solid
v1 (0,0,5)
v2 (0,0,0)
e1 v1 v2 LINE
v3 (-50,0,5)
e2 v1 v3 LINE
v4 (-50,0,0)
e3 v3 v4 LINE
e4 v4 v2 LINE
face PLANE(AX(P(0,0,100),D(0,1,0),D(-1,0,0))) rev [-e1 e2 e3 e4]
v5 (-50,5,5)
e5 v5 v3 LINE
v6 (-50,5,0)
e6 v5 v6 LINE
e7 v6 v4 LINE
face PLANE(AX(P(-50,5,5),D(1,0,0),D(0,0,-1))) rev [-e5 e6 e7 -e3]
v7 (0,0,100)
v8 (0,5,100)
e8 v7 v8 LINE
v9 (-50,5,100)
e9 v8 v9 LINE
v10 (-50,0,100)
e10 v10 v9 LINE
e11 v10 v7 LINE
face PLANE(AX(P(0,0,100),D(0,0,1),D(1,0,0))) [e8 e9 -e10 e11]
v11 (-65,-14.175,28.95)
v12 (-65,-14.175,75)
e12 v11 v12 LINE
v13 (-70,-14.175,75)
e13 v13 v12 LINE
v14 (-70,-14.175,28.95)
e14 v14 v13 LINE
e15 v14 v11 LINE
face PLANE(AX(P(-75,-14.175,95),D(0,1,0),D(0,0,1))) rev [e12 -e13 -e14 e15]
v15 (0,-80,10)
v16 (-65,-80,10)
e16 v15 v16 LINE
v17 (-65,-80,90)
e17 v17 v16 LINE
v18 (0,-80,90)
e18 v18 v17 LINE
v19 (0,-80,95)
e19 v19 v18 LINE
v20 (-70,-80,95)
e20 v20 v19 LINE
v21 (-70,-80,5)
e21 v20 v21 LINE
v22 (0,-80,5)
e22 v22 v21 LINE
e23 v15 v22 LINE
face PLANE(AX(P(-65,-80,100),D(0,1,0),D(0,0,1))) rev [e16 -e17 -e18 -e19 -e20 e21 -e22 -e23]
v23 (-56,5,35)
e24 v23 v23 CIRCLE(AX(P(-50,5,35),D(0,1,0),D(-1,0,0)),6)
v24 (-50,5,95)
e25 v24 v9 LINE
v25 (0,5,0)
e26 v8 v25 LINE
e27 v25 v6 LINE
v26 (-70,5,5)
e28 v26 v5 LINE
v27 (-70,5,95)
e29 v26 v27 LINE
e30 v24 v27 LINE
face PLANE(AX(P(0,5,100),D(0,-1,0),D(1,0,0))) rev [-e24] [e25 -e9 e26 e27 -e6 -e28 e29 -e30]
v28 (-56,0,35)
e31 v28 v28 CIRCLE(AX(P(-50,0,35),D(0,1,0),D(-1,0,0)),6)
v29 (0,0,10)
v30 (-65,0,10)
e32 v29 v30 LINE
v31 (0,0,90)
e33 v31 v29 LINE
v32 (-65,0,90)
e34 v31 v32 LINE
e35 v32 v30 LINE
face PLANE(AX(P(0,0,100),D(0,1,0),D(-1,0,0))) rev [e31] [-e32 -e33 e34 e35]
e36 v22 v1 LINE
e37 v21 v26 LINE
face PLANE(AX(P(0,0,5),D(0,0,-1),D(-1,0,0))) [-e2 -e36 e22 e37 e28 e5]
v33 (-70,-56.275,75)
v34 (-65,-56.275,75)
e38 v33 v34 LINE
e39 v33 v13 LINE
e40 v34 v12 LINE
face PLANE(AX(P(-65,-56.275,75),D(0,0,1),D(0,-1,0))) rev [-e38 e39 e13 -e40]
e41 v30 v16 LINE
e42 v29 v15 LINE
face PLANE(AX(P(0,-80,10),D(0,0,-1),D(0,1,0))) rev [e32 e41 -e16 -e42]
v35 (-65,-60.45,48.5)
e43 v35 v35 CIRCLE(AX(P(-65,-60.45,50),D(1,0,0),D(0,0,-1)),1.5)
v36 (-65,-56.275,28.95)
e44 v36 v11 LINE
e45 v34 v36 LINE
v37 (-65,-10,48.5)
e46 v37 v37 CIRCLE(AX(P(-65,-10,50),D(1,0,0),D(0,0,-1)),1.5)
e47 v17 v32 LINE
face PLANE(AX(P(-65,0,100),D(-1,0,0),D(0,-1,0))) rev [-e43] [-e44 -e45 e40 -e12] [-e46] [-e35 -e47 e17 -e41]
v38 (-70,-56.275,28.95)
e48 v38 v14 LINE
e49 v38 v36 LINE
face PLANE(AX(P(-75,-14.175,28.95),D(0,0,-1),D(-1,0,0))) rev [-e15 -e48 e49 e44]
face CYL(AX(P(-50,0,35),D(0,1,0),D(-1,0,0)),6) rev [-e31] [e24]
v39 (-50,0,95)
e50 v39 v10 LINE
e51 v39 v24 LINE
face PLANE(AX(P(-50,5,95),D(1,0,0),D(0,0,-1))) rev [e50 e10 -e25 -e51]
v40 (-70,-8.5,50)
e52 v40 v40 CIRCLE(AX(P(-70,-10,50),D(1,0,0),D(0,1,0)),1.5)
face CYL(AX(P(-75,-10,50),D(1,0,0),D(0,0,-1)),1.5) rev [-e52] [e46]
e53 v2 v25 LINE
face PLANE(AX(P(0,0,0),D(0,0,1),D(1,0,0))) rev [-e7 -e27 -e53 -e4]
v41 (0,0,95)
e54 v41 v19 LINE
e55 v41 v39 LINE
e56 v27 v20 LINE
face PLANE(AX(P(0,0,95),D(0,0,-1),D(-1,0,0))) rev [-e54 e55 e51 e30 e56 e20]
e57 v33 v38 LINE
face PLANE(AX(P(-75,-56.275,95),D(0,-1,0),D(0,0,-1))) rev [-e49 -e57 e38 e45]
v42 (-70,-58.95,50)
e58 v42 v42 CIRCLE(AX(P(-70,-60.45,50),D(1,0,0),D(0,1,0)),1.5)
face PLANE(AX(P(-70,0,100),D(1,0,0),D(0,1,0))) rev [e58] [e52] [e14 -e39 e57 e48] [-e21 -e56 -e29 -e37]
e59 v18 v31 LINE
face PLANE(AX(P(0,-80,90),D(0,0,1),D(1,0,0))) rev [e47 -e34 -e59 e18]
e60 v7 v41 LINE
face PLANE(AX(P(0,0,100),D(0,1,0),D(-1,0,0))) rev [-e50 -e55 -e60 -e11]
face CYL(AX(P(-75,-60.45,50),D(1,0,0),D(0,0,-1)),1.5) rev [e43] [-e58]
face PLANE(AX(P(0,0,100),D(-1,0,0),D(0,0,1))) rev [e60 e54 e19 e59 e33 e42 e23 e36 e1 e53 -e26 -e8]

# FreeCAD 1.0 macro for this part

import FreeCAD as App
import Part
import Sketcher

V = App.Vector

doc = App.newDocument("Part")
body = doc.addObject("PartDesign::Body", "Body")

# Sketch on XY plane
sketch1 = doc.addObject("Sketcher::SketchObject", "Sketch")
body.addObject(sketch1)
sketch1.AttachmentSupport = (doc.XY_Plane, [""])
sketch1.MapMode = "FlatFace"
sketch1.addGeometry(Part.LineSegment(V(-65, 0, 0), V(0, 0, 0)), False)
sketch1.addGeometry(Part.LineSegment(V(0, 0, 0), V(0, 5, 0)), False)
sketch1.addGeometry(Part.LineSegment(V(0, 5, 0), V(-65, 5, 0)), False)
sketch1.addGeometry(Part.LineSegment(V(-65, 5, 0), V(-65, 30, 0)), False)
sketch1.addGeometry(Part.LineSegment(V(-65, 30, 0), V(-70, 30, 0)), False)
sketch1.addGeometry(Part.LineSegment(V(-70, 30, 0), V(-70, -80, 0)), False)
sketch1.addGeometry(Part.LineSegment(V(-70, -80, 0), V(-65, -80, 0)), False)
sketch1.addGeometry(Part.LineSegment(V(-65, -80, 0), V(-65, 0, 0)), False)
sketch1.addConstraint(Sketcher.Constraint("Coincident", 0, 2, 1, 1))
sketch1.addConstraint(Sketcher.Constraint("Coincident", 1, 2, 2, 1))
sketch1.addConstraint(Sketcher.Constraint("Coincident", 2, 2, 3, 1))
sketch1.addConstraint(Sketcher.Constraint("Coincident", 3, 2, 4, 1))
sketch1.addConstraint(Sketcher.Constraint("Coincident", 4, 2, 5, 1))
sketch1.addConstraint(Sketcher.Constraint("Coincident", 5, 2, 6, 1))
sketch1.addConstraint(Sketcher.Constraint("Coincident", 6, 2, 7, 1))
sketch1.addConstraint(Sketcher.Constraint("Coincident", 7, 2, 0, 1))
sketch1.addConstraint(Sketcher.Constraint("Horizontal", 0))
sketch1.addConstraint(Sketcher.Constraint("Vertical", 1))
sketch1.addConstraint(Sketcher.Constraint("Horizontal", 2))
sketch1.addConstraint(Sketcher.Constraint("Vertical", 3))
sketch1.addConstraint(Sketcher.Constraint("Horizontal", 4))
sketch1.addConstraint(Sketcher.Constraint("Vertical", 5))
sketch1.addConstraint(Sketcher.Constraint("Horizontal", 6))
sketch1.addConstraint(Sketcher.Constraint("Vertical", 7))
sketch1.addConstraint(Sketcher.Constraint("Coincident", 0, 2, -1, 1))
sketch1.addConstraint(Sketcher.Constraint("Vertical", 3, 2, 6, 2))
sketch1.addConstraint(Sketcher.Constraint("Equal", 6, 1))
sketch1.addConstraint(Sketcher.Constraint("DistanceX", 0, 1, 0, 2, 65.0))
sketch1.addConstraint(Sketcher.Constraint("DistanceX", 4, 2, 4, 1, 5.0))
sketch1.addConstraint(Sketcher.Constraint("DistanceY", 3, 1, 3, 2, 25.0))
sketch1.addConstraint(Sketcher.Constraint("DistanceY", 5, 2, 5, 1, 110.0))
pad1 = doc.addObject("PartDesign::Pad", "Pad")
body.addObject(pad1)
pad1.Profile = sketch1
pad1.Length = 100

# Sketch on XY plane
sketch2 = doc.addObject("Sketcher::SketchObject", "Sketch001")
body.addObject(sketch2)
sketch2.AttachmentSupport = (doc.XY_Plane, [""])
sketch2.MapMode = "FlatFace"
sketch2.AttachmentOffset = App.Placement(V(0, 0, 100), App.Rotation())
sketch2.addGeometry(Part.LineSegment(V(-70, 0, 0), V(-70, -80, 0)), False)
sketch2.addGeometry(Part.LineSegment(V(-70, -80, 0), V(-65, -80, 0)), False)
sketch2.addGeometry(Part.LineSegment(V(-65, -80, 0), V(-65, 0, 0)), False)
sketch2.addGeometry(Part.LineSegment(V(-65, 0, 0), V(-70, 0, 0)), False)
sketch2.addConstraint(Sketcher.Constraint("Coincident", 0, 2, 1, 1))
sketch2.addConstraint(Sketcher.Constraint("Coincident", 1, 2, 2, 1))
sketch2.addConstraint(Sketcher.Constraint("Coincident", 2, 2, 3, 1))
sketch2.addConstraint(Sketcher.Constraint("Coincident", 3, 2, 0, 1))
sketch2.addConstraint(Sketcher.Constraint("Vertical", 0))
sketch2.addConstraint(Sketcher.Constraint("Horizontal", 1))
sketch2.addConstraint(Sketcher.Constraint("Vertical", 2))
sketch2.addConstraint(Sketcher.Constraint("Horizontal", 3))
sketch2.addConstraint(Sketcher.Constraint("PointOnObject", 2, 2, -1))
sketch2.addConstraint(Sketcher.Constraint("DistanceX", 1, 1, 1, 2, 5.0))
sketch2.addConstraint(Sketcher.Constraint("DistanceY", 0, 2, 0, 1, 80.0))
sketch2.addConstraint(Sketcher.Constraint("DistanceX", 0, 2, -1, 1, 70.0))
pocket1 = doc.addObject("PartDesign::Pocket", "Pocket")
body.addObject(pocket1)
pocket1.Profile = sketch2
pocket1.Length = 5

# Sketch on XY plane
sketch3 = doc.addObject("Sketcher::SketchObject", "Sketch002")
body.addObject(sketch3)
sketch3.AttachmentSupport = (doc.XY_Plane, [""])
sketch3.MapMode = "FlatFace"
sketch3.addGeometry(Part.LineSegment(V(-65, 0, 0), V(-65, -80, 0)), False)
sketch3.addGeometry(Part.LineSegment(V(-65, -80, 0), V(-70, -80, 0)), False)
sketch3.addGeometry(Part.LineSegment(V(-70, -80, 0), V(-70, 0, 0)), False)
sketch3.addGeometry(Part.LineSegment(V(-70, 0, 0), V(-65, 0, 0)), False)
sketch3.addConstraint(Sketcher.Constraint("Coincident", 0, 2, 1, 1))
sketch3.addConstraint(Sketcher.Constraint("Coincident", 1, 2, 2, 1))
sketch3.addConstraint(Sketcher.Constraint("Coincident", 2, 2, 3, 1))
sketch3.addConstraint(Sketcher.Constraint("Coincident", 3, 2, 0, 1))
sketch3.addConstraint(Sketcher.Constraint("Vertical", 0))
sketch3.addConstraint(Sketcher.Constraint("Horizontal", 1))
sketch3.addConstraint(Sketcher.Constraint("Vertical", 2))
sketch3.addConstraint(Sketcher.Constraint("Horizontal", 3))
sketch3.addConstraint(Sketcher.Constraint("PointOnObject", 2, 2, -1))
sketch3.addConstraint(Sketcher.Constraint("DistanceX", 1, 2, 1, 1, 5.0))
sketch3.addConstraint(Sketcher.Constraint("DistanceY", 0, 2, 0, 1, 80.0))
sketch3.addConstraint(Sketcher.Constraint("DistanceX", 0, 2, -1, 1, 65.0))
pocket2 = doc.addObject("PartDesign::Pocket", "Pocket001")
body.addObject(pocket2)
pocket2.Profile = sketch3
pocket2.Length = 5
pocket2.Reversed = True

# Sketch on XY plane
sketch4 = doc.addObject("Sketcher::SketchObject", "Sketch003")
body.addObject(sketch4)
sketch4.AttachmentSupport = (doc.XY_Plane, [""])
sketch4.MapMode = "FlatFace"
sketch4.AttachmentOffset = App.Placement(V(0, 0, 100), App.Rotation())
sketch4.addGeometry(Part.LineSegment(V(-65, 5, 0), V(-65, 0, 0)), False)
sketch4.addGeometry(Part.LineSegment(V(-65, 0, 0), V(-50, 0, 0)), False)
sketch4.addGeometry(Part.LineSegment(V(-50, 0, 0), V(-50, 5, 0)), False)
sketch4.addGeometry(Part.LineSegment(V(-50, 5, 0), V(-65, 5, 0)), False)
sketch4.addConstraint(Sketcher.Constraint("Coincident", 0, 2, 1, 1))
sketch4.addConstraint(Sketcher.Constraint("Coincident", 1, 2, 2, 1))
sketch4.addConstraint(Sketcher.Constraint("Coincident", 2, 2, 3, 1))
sketch4.addConstraint(Sketcher.Constraint("Coincident", 3, 2, 0, 1))
sketch4.addConstraint(Sketcher.Constraint("Vertical", 0))
sketch4.addConstraint(Sketcher.Constraint("Horizontal", 1))
sketch4.addConstraint(Sketcher.Constraint("Vertical", 2))
sketch4.addConstraint(Sketcher.Constraint("Horizontal", 3))
sketch4.addConstraint(Sketcher.Constraint("PointOnObject", 0, 2, -1))
sketch4.addConstraint(Sketcher.Constraint("DistanceX", 1, 1, 1, 2, 15.0))
sketch4.addConstraint(Sketcher.Constraint("DistanceY", 0, 2, 0, 1, 5.0))
sketch4.addConstraint(Sketcher.Constraint("DistanceX", 0, 2, -1, 1, 65.0))
pocket3 = doc.addObject("PartDesign::Pocket", "Pocket002")
body.addObject(pocket3)
pocket3.Profile = sketch4
pocket3.Length = 5

# Sketch on XY plane
sketch5 = doc.addObject("Sketcher::SketchObject", "Sketch004")
body.addObject(sketch5)
sketch5.AttachmentSupport = (doc.XY_Plane, [""])
sketch5.MapMode = "FlatFace"
sketch5.addGeometry(Part.LineSegment(V(-50, 5, 0), V(-50, 0, 0)), False)
sketch5.addGeometry(Part.LineSegment(V(-50, 0, 0), V(-65, 0, 0)), False)
sketch5.addGeometry(Part.LineSegment(V(-65, 0, 0), V(-65, 5, 0)), False)
sketch5.addGeometry(Part.LineSegment(V(-65, 5, 0), V(-50, 5, 0)), False)
sketch5.addConstraint(Sketcher.Constraint("Coincident", 0, 2, 1, 1))
sketch5.addConstraint(Sketcher.Constraint("Coincident", 1, 2, 2, 1))
sketch5.addConstraint(Sketcher.Constraint("Coincident", 2, 2, 3, 1))
sketch5.addConstraint(Sketcher.Constraint("Coincident", 3, 2, 0, 1))
sketch5.addConstraint(Sketcher.Constraint("Vertical", 0))
sketch5.addConstraint(Sketcher.Constraint("Horizontal", 1))
sketch5.addConstraint(Sketcher.Constraint("Vertical", 2))
sketch5.addConstraint(Sketcher.Constraint("Horizontal", 3))
sketch5.addConstraint(Sketcher.Constraint("PointOnObject", 0, 2, -1))
sketch5.addConstraint(Sketcher.Constraint("DistanceX", 1, 2, 1, 1, 15.0))
sketch5.addConstraint(Sketcher.Constraint("DistanceY", 0, 2, 0, 1, 5.0))
sketch5.addConstraint(Sketcher.Constraint("DistanceX", 0, 2, -1, 1, 50.0))
pocket4 = doc.addObject("PartDesign::Pocket", "Pocket003")
body.addObject(pocket4)
pocket4.Profile = sketch5
pocket4.Length = 5
pocket4.Reversed = True

# Sketch on YZ plane
sketch6 = doc.addObject("Sketcher::SketchObject", "Sketch005")
body.addObject(sketch6)
sketch6.AttachmentSupport = (doc.YZ_Plane, [""])
sketch6.MapMode = "FlatFace"
sketch6.AttachmentOffset = App.Placement(V(0, 0, -65), App.Rotation())
sketch6.addGeometry(Part.Circle(V(-10, 50, 0), V(0, 0, 1), 1.5), False)
sketch6.addGeometry(Part.Circle(V(-60.5, 50, 0), V(0, 0, 1), 1.5), False)
sketch6.addConstraint(Sketcher.Constraint("Equal", 0, 1))
sketch6.addConstraint(Sketcher.Constraint("Horizontal", 0, 3, 1, 3))
sketch6.addConstraint(Sketcher.Constraint("Diameter", 0, 3.0))
sketch6.addConstraint(Sketcher.Constraint("DistanceX", 0, 3, -1, 1, 10.0))
sketch6.addConstraint(Sketcher.Constraint("DistanceY", -1, 1, 0, 3, 50.0))
sketch6.addConstraint(Sketcher.Constraint("DistanceX", 1, 3, -1, 1, 60.45))
pocket5 = doc.addObject("PartDesign::Pocket", "Pocket004")
body.addObject(pocket5)
pocket5.Profile = sketch6
pocket5.Length = 10

# Sketch on YZ plane
sketch7 = doc.addObject("Sketcher::SketchObject", "Sketch006")
body.addObject(sketch7)
sketch7.AttachmentSupport = (doc.YZ_Plane, [""])
sketch7.MapMode = "FlatFace"
sketch7.AttachmentOffset = App.Placement(V(0, 0, -65), App.Rotation())
sketch7.addGeometry(Part.LineSegment(V(-14, 95, 0), V(-56, 95, 0)), False)
sketch7.addGeometry(Part.LineSegment(V(-56, 95, 0), V(-56, 29, 0)), False)
sketch7.addGeometry(Part.LineSegment(V(-56, 29, 0), V(-14, 29, 0)), False)
sketch7.addGeometry(Part.LineSegment(V(-14, 29, 0), V(-14, 95, 0)), False)
sketch7.addConstraint(Sketcher.Constraint("Coincident", 0, 2, 1, 1))
sketch7.addConstraint(Sketcher.Constraint("Coincident", 1, 2, 2, 1))
sketch7.addConstraint(Sketcher.Constraint("Coincident", 2, 2, 3, 1))
sketch7.addConstraint(Sketcher.Constraint("Coincident", 3, 2, 0, 1))
sketch7.addConstraint(Sketcher.Constraint("Horizontal", 0))
sketch7.addConstraint(Sketcher.Constraint("Vertical", 1))
sketch7.addConstraint(Sketcher.Constraint("Horizontal", 2))
sketch7.addConstraint(Sketcher.Constraint("Vertical", 3))
sketch7.addConstraint(Sketcher.Constraint("DistanceX", 0, 2, 0, 1, 42.1))
sketch7.addConstraint(Sketcher.Constraint("DistanceY", -1, 1, 0, 2, 95.0))
sketch7.addConstraint(Sketcher.Constraint("DistanceY", 1, 2, 1, 1, 66.05))
sketch7.addConstraint(Sketcher.Constraint("DistanceX", 0, 2, -1, 1, 56.275))
pocket6 = doc.addObject("PartDesign::Pocket", "Pocket005")
body.addObject(pocket6)
pocket6.Profile = sketch7
pocket6.Length = 10

# Sketch on XZ plane
sketch8 = doc.addObject("Sketcher::SketchObject", "Sketch007")
body.addObject(sketch8)
sketch8.AttachmentSupport = (doc.XZ_Plane, [""])
sketch8.MapMode = "FlatFace"
sketch8.AttachmentOffset = App.Placement(V(0, 0, 14.175), App.Rotation())
sketch8.addGeometry(Part.LineSegment(V(-70, 95, 0), V(-70, 75, 0)), False)
sketch8.addGeometry(Part.LineSegment(V(-70, 75, 0), V(-65, 75, 0)), False)
sketch8.addGeometry(Part.LineSegment(V(-65, 75, 0), V(-65, 95, 0)), False)
sketch8.addGeometry(Part.LineSegment(V(-65, 95, 0), V(-70, 95, 0)), False)
sketch8.addConstraint(Sketcher.Constraint("Coincident", 0, 2, 1, 1))
sketch8.addConstraint(Sketcher.Constraint("Coincident", 1, 2, 2, 1))
sketch8.addConstraint(Sketcher.Constraint("Coincident", 2, 2, 3, 1))
sketch8.addConstraint(Sketcher.Constraint("Coincident", 3, 2, 0, 1))
sketch8.addConstraint(Sketcher.Constraint("Vertical", 0))
sketch8.addConstraint(Sketcher.Constraint("Horizontal", 1))
sketch8.addConstraint(Sketcher.Constraint("Vertical", 2))
sketch8.addConstraint(Sketcher.Constraint("Horizontal", 3))
sketch8.addConstraint(Sketcher.Constraint("DistanceX", 1, 1, 1, 2, 5.0))
sketch8.addConstraint(Sketcher.Constraint("DistanceY", 0, 2, 0, 1, 20.0))
sketch8.addConstraint(Sketcher.Constraint("DistanceX", 0, 2, -1, 1, 70.0))
sketch8.addConstraint(Sketcher.Constraint("DistanceY", -1, 1, 0, 2, 75.0))
pad2 = doc.addObject("PartDesign::Pad", "Pad001")
body.addObject(pad2)
pad2.Profile = sketch8
pad2.Length = 42.1

# Sketch on XZ plane
sketch9 = doc.addObject("Sketcher::SketchObject", "Sketch008")
body.addObject(sketch9)
sketch9.AttachmentSupport = (doc.XZ_Plane, [""])
sketch9.MapMode = "FlatFace"
sketch9.AttachmentOffset = App.Placement(V(0, 0, -5), App.Rotation())
sketch9.addGeometry(Part.Circle(V(-50, 35, 0), V(0, 0, 1), 6), False)
sketch9.addConstraint(Sketcher.Constraint("Diameter", 0, 12.0))
sketch9.addConstraint(Sketcher.Constraint("DistanceX", 0, 3, -1, 1, 50.0))
sketch9.addConstraint(Sketcher.Constraint("DistanceY", -1, 1, 0, 3, 35.0))
pocket7 = doc.addObject("PartDesign::Pocket", "Pocket006")
body.addObject(pocket7)
pocket7.Profile = sketch9
pocket7.Length = 5
pocket7.Reversed = True

# Sketch on XY plane
sketch10 = doc.addObject("Sketcher::SketchObject", "Sketch009")
body.addObject(sketch10)
sketch10.AttachmentSupport = (doc.XY_Plane, [""])
sketch10.MapMode = "FlatFace"
sketch10.AttachmentOffset = App.Placement(V(0, 0, 100), App.Rotation())
sketch10.addGeometry(Part.LineSegment(V(-70, 30, 0), V(-70, 5, 0)), False)
sketch10.addGeometry(Part.LineSegment(V(-70, 5, 0), V(-65, 5, 0)), False)
sketch10.addGeometry(Part.LineSegment(V(-65, 5, 0), V(-65, 30, 0)), False)
sketch10.addGeometry(Part.LineSegment(V(-65, 30, 0), V(-70, 30, 0)), False)
sketch10.addConstraint(Sketcher.Constraint("Coincident", 0, 2, 1, 1))
sketch10.addConstraint(Sketcher.Constraint("Coincident", 1, 2, 2, 1))
sketch10.addConstraint(Sketcher.Constraint("Coincident", 2, 2, 3, 1))
sketch10.addConstraint(Sketcher.Constraint("Coincident", 3, 2, 0, 1))
sketch10.addConstraint(Sketcher.Constraint("Vertical", 0))
sketch10.addConstraint(Sketcher.Constraint("Horizontal", 1))
sketch10.addConstraint(Sketcher.Constraint("Vertical", 2))
sketch10.addConstraint(Sketcher.Constraint("Horizontal", 3))
sketch10.addConstraint(Sketcher.Constraint("DistanceX", 1, 1, 1, 2, 5.0))
sketch10.addConstraint(Sketcher.Constraint("DistanceY", 0, 2, 0, 1, 25.0))
sketch10.addConstraint(Sketcher.Constraint("DistanceX", 0, 2, -1, 1, 70.0))
sketch10.addConstraint(Sketcher.Constraint("DistanceY", -1, 1, 0, 2, 5.0))
pocket8 = doc.addObject("PartDesign::Pocket", "Pocket007")
body.addObject(pocket8)
pocket8.Profile = sketch10
pocket8.Length = 100

# Sketch on XY plane
sketch11 = doc.addObject("Sketcher::SketchObject", "Sketch010")
body.addObject(sketch11)
sketch11.AttachmentSupport = (doc.XY_Plane, [""])
sketch11.MapMode = "FlatFace"
sketch11.AttachmentOffset = App.Placement(V(0, 0, 100), App.Rotation())
sketch11.addGeometry(Part.LineSegment(V(-70, 5, 0), V(-70, 0, 0)), False)
sketch11.addGeometry(Part.LineSegment(V(-70, 0, 0), V(-65, 0, 0)), False)
sketch11.addGeometry(Part.LineSegment(V(-65, 0, 0), V(-65, 5, 0)), False)
sketch11.addGeometry(Part.LineSegment(V(-65, 5, 0), V(-70, 5, 0)), False)
sketch11.addConstraint(Sketcher.Constraint("Coincident", 0, 2, 1, 1))
sketch11.addConstraint(Sketcher.Constraint("Coincident", 1, 2, 2, 1))
sketch11.addConstraint(Sketcher.Constraint("Coincident", 2, 2, 3, 1))
sketch11.addConstraint(Sketcher.Constraint("Coincident", 3, 2, 0, 1))
sketch11.addConstraint(Sketcher.Constraint("Vertical", 0))
sketch11.addConstraint(Sketcher.Constraint("Horizontal", 1))
sketch11.addConstraint(Sketcher.Constraint("Vertical", 2))
sketch11.addConstraint(Sketcher.Constraint("Horizontal", 3))
sketch11.addConstraint(Sketcher.Constraint("PointOnObject", 0, 2, -1))
sketch11.addConstraint(Sketcher.Constraint("Equal", 3, 0))
sketch11.addConstraint(Sketcher.Constraint("DistanceX", 1, 1, 1, 2, 5.0))
sketch11.addConstraint(Sketcher.Constraint("DistanceX", 0, 2, -1, 1, 70.0))
pocket9 = doc.addObject("PartDesign::Pocket", "Pocket008")
body.addObject(pocket9)
pocket9.Profile = sketch11
pocket9.Length = 5

# Sketch on XY plane
sketch12 = doc.addObject("Sketcher::SketchObject", "Sketch011")
body.addObject(sketch12)
sketch12.AttachmentSupport = (doc.XY_Plane, [""])
sketch12.MapMode = "FlatFace"
sketch12.addGeometry(Part.LineSegment(V(-65, 5, 0), V(-65, 0, 0)), False)
sketch12.addGeometry(Part.LineSegment(V(-65, 0, 0), V(-70, 0, 0)), False)
sketch12.addGeometry(Part.LineSegment(V(-70, 0, 0), V(-70, 5, 0)), False)
sketch12.addGeometry(Part.LineSegment(V(-70, 5, 0), V(-65, 5, 0)), False)
sketch12.addConstraint(Sketcher.Constraint("Coincident", 0, 2, 1, 1))
sketch12.addConstraint(Sketcher.Constraint("Coincident", 1, 2, 2, 1))
sketch12.addConstraint(Sketcher.Constraint("Coincident", 2, 2, 3, 1))
sketch12.addConstraint(Sketcher.Constraint("Coincident", 3, 2, 0, 1))
sketch12.addConstraint(Sketcher.Constraint("Vertical", 0))
sketch12.addConstraint(Sketcher.Constraint("Horizontal", 1))
sketch12.addConstraint(Sketcher.Constraint("Vertical", 2))
sketch12.addConstraint(Sketcher.Constraint("Horizontal", 3))
sketch12.addConstraint(Sketcher.Constraint("PointOnObject", 0, 2, -1))
sketch12.addConstraint(Sketcher.Constraint("Equal", 3, 0))
sketch12.addConstraint(Sketcher.Constraint("DistanceX", 1, 2, 1, 1, 5.0))
sketch12.addConstraint(Sketcher.Constraint("DistanceX", 0, 2, -1, 1, 65.0))
pocket10 = doc.addObject("PartDesign::Pocket", "Pocket009")
body.addObject(pocket10)
pocket10.Profile = sketch12
pocket10.Length = 5
pocket10.Reversed = True

# Sketch on YZ plane
sketch13 = doc.addObject("Sketcher::SketchObject", "Sketch012")
body.addObject(sketch13)
sketch13.AttachmentSupport = (doc.YZ_Plane, [""])
sketch13.MapMode = "FlatFace"
sketch13.AttachmentOffset = App.Placement(V(0, 0, -65), App.Rotation())
sketch13.addGeometry(Part.LineSegment(V(0, 95, 0), V(-80, 95, 0)), False)
sketch13.addGeometry(Part.LineSegment(V(-80, 95, 0), V(-80, 90, 0)), False)
sketch13.addGeometry(Part.LineSegment(V(-80, 90, 0), V(0, 90, 0)), False)
sketch13.addGeometry(Part.LineSegment(V(0, 90, 0), V(0, 95, 0)), False)
sketch13.addGeometry(Part.LineSegment(V(0, 10, 0), V(-80, 10, 0)), False)
sketch13.addGeometry(Part.LineSegment(V(-80, 10, 0), V(-80, 5, 0)), False)
sketch13.addGeometry(Part.LineSegment(V(-80, 5, 0), V(0, 5, 0)), False)
sketch13.addGeometry(Part.LineSegment(V(0, 5, 0), V(0, 10, 0)), False)
sketch13.addConstraint(Sketcher.Constraint("Coincident", 0, 2, 1, 1))
sketch13.addConstraint(Sketcher.Constraint("Coincident", 1, 2, 2, 1))
sketch13.addConstraint(Sketcher.Constraint("Coincident", 2, 2, 3, 1))
sketch13.addConstraint(Sketcher.Constraint("Coincident", 3, 2, 0, 1))
sketch13.addConstraint(Sketcher.Constraint("Coincident", 4, 2, 5, 1))
sketch13.addConstraint(Sketcher.Constraint("Coincident", 5, 2, 6, 1))
sketch13.addConstraint(Sketcher.Constraint("Coincident", 6, 2, 7, 1))
sketch13.addConstraint(Sketcher.Constraint("Coincident", 7, 2, 4, 1))
sketch13.addConstraint(Sketcher.Constraint("Horizontal", 0))
sketch13.addConstraint(Sketcher.Constraint("Vertical", 1))
sketch13.addConstraint(Sketcher.Constraint("Horizontal", 2))
sketch13.addConstraint(Sketcher.Constraint("Vertical", 3))
sketch13.addConstraint(Sketcher.Constraint("Horizontal", 4))
sketch13.addConstraint(Sketcher.Constraint("Vertical", 5))
sketch13.addConstraint(Sketcher.Constraint("Horizontal", 6))
sketch13.addConstraint(Sketcher.Constraint("Vertical", 7))
sketch13.addConstraint(Sketcher.Constraint("PointOnObject", 2, 2, -2))
sketch13.addConstraint(Sketcher.Constraint("PointOnObject", 6, 2, -2))
sketch13.addConstraint(Sketcher.Constraint("Vertical", 1, 2, 4, 2))
sketch13.addConstraint(Sketcher.Constraint("Equal", 3, 5))
sketch13.addConstraint(Sketcher.Constraint("DistanceX", 0, 2, 0, 1, 80.0))
sketch13.addConstraint(Sketcher.Constraint("DistanceY", 1, 2, 1, 1, 5.0))
sketch13.addConstraint(Sketcher.Constraint("DistanceY", -1, 1, 0, 2, 95.0))
sketch13.addConstraint(Sketcher.Constraint("DistanceY", -1, 1, 4, 2, 10.0))
pad3 = doc.addObject("PartDesign::Pad", "Pad002")
body.addObject(pad3)
pad3.Profile = sketch13
pad3.Length = 65

doc.recompute()
